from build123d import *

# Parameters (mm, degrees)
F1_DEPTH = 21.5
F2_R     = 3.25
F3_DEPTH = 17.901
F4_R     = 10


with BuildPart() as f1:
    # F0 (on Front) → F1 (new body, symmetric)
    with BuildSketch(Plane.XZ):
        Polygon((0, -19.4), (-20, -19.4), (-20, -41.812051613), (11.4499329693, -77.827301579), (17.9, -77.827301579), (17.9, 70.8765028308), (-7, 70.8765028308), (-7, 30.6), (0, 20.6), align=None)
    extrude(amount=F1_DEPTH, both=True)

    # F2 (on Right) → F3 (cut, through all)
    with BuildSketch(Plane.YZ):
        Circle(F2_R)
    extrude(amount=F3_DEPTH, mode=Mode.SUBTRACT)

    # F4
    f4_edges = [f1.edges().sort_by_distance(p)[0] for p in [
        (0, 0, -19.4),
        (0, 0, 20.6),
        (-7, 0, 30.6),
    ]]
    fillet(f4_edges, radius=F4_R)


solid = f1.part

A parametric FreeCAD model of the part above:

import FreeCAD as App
import Part
import Sketcher

V = App.Vector


def edges_at(feature, points):
    """Names of the edges that pass closest to the given points."""
    edges = feature.Shape.Edges
    near = lambda p: min(range(len(edges)), key=lambda i: edges[i].distToShape(Part.Vertex(*p))[0])
    return sorted({f"Edge{near(p) + 1}" for p in points})


def add_polygon(sketch, points):
    """Adds a closed chain of lines whose ends are joined by coincident constraints."""
    first, n = sketch.GeometryCount, len(points)
    for a, b in zip(points, points[1:] + points[:1]):
        sketch.addGeometry(Part.LineSegment(App.Vector(*a, 0), App.Vector(*b, 0)), False)
    for i in range(n):
        sketch.addConstraint(Sketcher.Constraint("Coincident", first + i, 2, first + (i + 1) % n, 1))

doc = App.newDocument("Part")
body = doc.addObject("PartDesign::Body", "Body")

# Sketch on XZ plane
sketch1 = body.newObject("Sketcher::SketchObject", "Sketch")
sketch1.AttachmentSupport = (doc.getObject("XZ_Plane"), [""])
sketch1.MapMode = "FlatFace"
add_polygon(sketch1, [(0, -19), (-20, -19), (-20, -42), (11, -78), (18, -78), (18, 71), (-7, 71), (-7, 31), (0, 21)])  # lines 0-8
sketch1.addConstraint(Sketcher.Constraint("Horizontal", 0))
sketch1.addConstraint(Sketcher.Constraint("Vertical", 1))
sketch1.addConstraint(Sketcher.Constraint("Horizontal", 3))
sketch1.addConstraint(Sketcher.Constraint("Vertical", 4))
sketch1.addConstraint(Sketcher.Constraint("Horizontal", 5))
sketch1.addConstraint(Sketcher.Constraint("Vertical", 6))
sketch1.addConstraint(Sketcher.Constraint("Vertical", 8))
sketch1.addConstraint(Sketcher.Constraint("PointOnObject", 7, 2, -2))
sketch1.addConstraint(Sketcher.Constraint("DistanceX", 0, 2, 0, 1, 20.0))
sketch1.addConstraint(Sketcher.Constraint("DistanceY", 8, 2, 8, 1, 40.0))
sketch1.addConstraint(Sketcher.Constraint("DistanceX", 5, 2, 5, 1, 24.9))
sketch1.addConstraint(Sketcher.Constraint("DistanceX", 5, 2, -1, 1, 7.0))
sketch1.addConstraint(Sketcher.Constraint("DistanceY", 0, 2, 6, 2, 50.0))
sketch1.addConstraint(Sketcher.Constraint("DistanceY", 0, 2, -1, 1, 19.4))
sketch1.addConstraint(Sketcher.Constraint("DistanceY", 1, 2, 1, 1, 22.412052))
sketch1.addConstraint(Sketcher.Constraint("DistanceY", 2, 2, -1, 1, 77.827302))
sketch1.addConstraint(Sketcher.Constraint("DistanceX", 3, 1, 3, 2, 6.450067))
sketch1.addConstraint(Sketcher.Constraint("DistanceY", 4, 1, 4, 2, 148.703804))
pad1 = body.newObject("PartDesign::Pad", "Pad")
pad1.Profile = sketch1
pad1.Length = 43
pad1.Midplane = True

# Sketch on YZ plane
sketch2 = body.newObject("Sketcher::SketchObject", "Sketch001")
sketch2.AttachmentSupport = (doc.getObject("YZ_Plane"), [""])
sketch2.MapMode = "FlatFace"
sketch2.addGeometry(Part.Circle(V(0, 0, 0), V(0, 0, 1), 3.2), False)
sketch2.addConstraint(Sketcher.Constraint("Coincident", 0, 3, -1, 1))
sketch2.addConstraint(Sketcher.Constraint("Diameter", 0, 6.5))
pocket1 = body.newObject("PartDesign::Pocket", "Pocket")
pocket1.Profile = sketch2
pocket1.Type = "ThroughAll"
pocket1.Reversed = True
doc.recompute()

fillet = body.newObject("PartDesign::Fillet", "Fillet")
fillet.Base = (pocket1, edges_at(pocket1, [(0, 0, -19.4), (0, 0, 20.6), (-7, 0, 30.6)]))
fillet.Radius = 10

doc.recompute()
